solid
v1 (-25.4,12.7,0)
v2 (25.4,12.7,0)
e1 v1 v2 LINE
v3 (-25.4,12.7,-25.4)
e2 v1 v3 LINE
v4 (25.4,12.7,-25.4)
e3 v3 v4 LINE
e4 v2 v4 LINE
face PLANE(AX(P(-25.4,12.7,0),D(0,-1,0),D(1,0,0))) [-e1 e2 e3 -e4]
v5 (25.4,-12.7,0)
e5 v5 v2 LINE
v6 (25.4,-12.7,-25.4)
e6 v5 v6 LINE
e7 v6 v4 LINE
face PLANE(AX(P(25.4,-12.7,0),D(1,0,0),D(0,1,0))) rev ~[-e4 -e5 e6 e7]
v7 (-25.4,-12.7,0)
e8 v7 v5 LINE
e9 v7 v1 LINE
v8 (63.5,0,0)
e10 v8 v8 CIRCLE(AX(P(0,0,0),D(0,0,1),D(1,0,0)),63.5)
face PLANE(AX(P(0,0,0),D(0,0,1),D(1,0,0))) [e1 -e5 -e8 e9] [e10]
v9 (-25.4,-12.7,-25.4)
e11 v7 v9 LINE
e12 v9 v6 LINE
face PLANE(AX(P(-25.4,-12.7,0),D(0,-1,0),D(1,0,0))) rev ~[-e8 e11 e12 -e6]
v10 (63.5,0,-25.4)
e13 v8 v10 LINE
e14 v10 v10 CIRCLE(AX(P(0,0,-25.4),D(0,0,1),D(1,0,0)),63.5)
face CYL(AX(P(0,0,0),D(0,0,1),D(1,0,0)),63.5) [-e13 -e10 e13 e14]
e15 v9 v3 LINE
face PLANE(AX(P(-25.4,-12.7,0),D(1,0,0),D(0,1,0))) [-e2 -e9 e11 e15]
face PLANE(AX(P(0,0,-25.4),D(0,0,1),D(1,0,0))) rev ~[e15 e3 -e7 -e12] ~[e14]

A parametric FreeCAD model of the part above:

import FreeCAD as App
import Part
import Sketcher

V = App.Vector
Q = App.Units.Quantity


def add_polygon(sketch, points):
    """Adds a closed chain of lines whose ends are joined by coincident constraints."""
    first, n = sketch.GeometryCount, len(points)
    for a, b in zip(points, points[1:] + points[:1]):
        sketch.addGeometry(Part.LineSegment(App.Vector(*a, 0), App.Vector(*b, 0)), False)
    for i in range(n):
        sketch.addConstraint(Sketcher.Constraint("Coincident", first + i, 2, first + (i + 1) % n, 1))

doc = App.newDocument("Part")
body = doc.addObject("PartDesign::Body", "Body")

# Sketch on XY plane
sketch1 = body.newObject("Sketcher::SketchObject", "Sketch")
sketch1.AttachmentSupport = (doc.getObject("XY_Plane"), [""])
sketch1.MapMode = "FlatFace"
sketch1.addGeometry(Part.Circle(V(0, 0, 0), V(0, 0, 1), 64), False)
sketch1.addConstraint([
    Sketcher.Constraint("Coincident", 0, 3, -1, 1),
    Sketcher.Constraint("Diameter", 0, Q("5 in")),
])
pad1 = body.newObject("PartDesign::Pad", "Pad")
pad1.Profile = sketch1
pad1.Length = Q("1 in")
pad1.Reversed = True

# Sketch on XY plane
sketch2 = body.newObject("Sketcher::SketchObject", "Sketch001")
sketch2.AttachmentSupport = (doc.getObject("XY_Plane"), [""])
sketch2.MapMode = "FlatFace"
add_polygon(sketch2, [(-25, 13), (-25, -13), (25, -13), (25, 13)])  # lines 0-3
sketch2.addConstraint([
    Sketcher.Constraint("Vertical", 0),
    Sketcher.Constraint("Horizontal", 1),
    Sketcher.Constraint("Vertical", 2),
    Sketcher.Constraint("Horizontal", 3),
    Sketcher.Constraint("Symmetric", 0, 2, 2, 2, -1, 1),
    Sketcher.Constraint("DistanceX", 1, 1, 1, 2, Q("2 in")),
    Sketcher.Constraint("DistanceY", 0, 2, 0, 1, Q("1 in")),
])
pocket1 = body.newObject("PartDesign::Pocket", "Pocket")
pocket1.Profile = sketch2
pocket1.Type = "ThroughAll"

doc.recompute()
